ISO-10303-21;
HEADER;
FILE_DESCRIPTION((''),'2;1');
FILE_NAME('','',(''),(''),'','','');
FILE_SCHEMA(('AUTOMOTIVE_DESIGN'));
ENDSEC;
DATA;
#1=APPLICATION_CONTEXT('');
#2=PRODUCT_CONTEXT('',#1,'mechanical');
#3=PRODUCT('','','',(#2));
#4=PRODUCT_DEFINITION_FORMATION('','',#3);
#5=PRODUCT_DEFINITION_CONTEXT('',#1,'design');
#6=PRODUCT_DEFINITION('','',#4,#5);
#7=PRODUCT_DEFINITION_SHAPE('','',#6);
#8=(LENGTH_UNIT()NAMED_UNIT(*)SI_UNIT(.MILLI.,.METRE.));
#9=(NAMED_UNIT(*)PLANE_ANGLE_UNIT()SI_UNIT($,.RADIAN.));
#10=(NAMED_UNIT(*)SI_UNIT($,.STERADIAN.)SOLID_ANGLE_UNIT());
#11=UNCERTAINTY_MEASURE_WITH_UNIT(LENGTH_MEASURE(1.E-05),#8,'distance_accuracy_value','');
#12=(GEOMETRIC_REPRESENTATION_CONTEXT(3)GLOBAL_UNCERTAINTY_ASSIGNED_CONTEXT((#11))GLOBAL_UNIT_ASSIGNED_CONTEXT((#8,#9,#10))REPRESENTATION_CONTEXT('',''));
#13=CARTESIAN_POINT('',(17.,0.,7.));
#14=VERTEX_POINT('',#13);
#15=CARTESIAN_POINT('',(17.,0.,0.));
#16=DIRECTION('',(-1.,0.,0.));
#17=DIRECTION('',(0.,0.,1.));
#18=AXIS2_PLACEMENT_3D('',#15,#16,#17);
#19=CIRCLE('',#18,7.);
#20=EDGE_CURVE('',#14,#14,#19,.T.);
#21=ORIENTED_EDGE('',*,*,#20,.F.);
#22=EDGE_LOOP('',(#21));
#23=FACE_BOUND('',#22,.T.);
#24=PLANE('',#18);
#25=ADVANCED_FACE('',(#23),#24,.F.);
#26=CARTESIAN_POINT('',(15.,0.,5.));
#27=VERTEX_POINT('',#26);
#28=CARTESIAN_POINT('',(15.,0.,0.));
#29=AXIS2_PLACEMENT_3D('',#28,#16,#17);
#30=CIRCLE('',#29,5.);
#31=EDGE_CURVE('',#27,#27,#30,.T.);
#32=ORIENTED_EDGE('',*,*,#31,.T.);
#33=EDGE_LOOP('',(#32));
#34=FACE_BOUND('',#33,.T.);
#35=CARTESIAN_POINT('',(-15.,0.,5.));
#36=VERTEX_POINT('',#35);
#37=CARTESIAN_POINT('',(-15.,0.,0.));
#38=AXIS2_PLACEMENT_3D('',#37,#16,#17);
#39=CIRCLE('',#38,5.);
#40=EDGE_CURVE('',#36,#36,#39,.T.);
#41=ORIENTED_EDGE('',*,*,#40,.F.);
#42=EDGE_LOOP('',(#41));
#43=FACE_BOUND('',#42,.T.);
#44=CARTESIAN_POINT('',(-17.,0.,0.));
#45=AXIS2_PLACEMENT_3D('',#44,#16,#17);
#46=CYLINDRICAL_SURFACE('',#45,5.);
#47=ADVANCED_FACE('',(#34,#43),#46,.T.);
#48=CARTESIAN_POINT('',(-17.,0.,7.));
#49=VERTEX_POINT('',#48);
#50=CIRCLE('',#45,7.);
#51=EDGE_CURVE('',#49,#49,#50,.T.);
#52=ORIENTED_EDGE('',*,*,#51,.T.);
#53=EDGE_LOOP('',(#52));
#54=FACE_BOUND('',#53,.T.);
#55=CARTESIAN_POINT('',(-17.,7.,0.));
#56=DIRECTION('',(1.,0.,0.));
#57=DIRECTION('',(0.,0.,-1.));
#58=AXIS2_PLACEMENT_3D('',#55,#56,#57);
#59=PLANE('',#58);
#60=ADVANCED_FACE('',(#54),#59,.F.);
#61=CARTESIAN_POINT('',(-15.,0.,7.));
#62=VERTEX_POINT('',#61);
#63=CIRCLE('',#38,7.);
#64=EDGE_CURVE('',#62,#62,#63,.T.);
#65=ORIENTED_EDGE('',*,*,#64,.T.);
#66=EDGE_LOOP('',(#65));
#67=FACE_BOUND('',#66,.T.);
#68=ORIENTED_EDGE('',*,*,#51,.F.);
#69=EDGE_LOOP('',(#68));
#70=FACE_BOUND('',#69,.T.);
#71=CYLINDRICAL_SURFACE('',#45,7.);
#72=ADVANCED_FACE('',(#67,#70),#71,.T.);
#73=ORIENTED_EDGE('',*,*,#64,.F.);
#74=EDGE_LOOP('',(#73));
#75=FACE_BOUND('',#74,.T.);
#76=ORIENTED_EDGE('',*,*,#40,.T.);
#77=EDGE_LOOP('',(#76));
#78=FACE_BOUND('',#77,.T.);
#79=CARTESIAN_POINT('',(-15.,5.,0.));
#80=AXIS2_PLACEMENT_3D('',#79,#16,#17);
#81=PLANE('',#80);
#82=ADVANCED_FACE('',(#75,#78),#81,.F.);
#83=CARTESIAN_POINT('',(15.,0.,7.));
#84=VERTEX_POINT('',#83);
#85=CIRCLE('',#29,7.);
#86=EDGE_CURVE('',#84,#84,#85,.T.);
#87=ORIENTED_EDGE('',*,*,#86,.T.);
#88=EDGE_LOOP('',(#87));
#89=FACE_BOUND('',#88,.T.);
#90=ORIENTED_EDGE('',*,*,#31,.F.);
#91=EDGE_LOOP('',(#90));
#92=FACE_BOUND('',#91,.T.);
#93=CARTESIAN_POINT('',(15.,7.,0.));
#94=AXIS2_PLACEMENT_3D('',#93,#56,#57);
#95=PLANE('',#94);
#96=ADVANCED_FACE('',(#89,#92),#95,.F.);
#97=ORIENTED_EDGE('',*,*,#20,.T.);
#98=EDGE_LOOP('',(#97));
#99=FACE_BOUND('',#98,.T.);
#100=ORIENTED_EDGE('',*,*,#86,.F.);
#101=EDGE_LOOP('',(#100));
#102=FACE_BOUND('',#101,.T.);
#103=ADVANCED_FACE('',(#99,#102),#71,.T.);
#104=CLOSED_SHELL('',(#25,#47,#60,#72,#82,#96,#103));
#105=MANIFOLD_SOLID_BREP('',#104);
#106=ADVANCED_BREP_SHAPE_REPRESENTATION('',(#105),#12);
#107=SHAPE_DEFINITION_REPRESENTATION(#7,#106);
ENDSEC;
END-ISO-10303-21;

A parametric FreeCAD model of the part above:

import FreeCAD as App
import Part
import Sketcher
from FreeCAD import Vector
Q = App.Units.Quantity

doc = App.newDocument("Part")
body = doc.addObject("PartDesign::Body", "Body")

sketch1 = body.newObject("Sketcher::SketchObject", "Sketch")
sketch1.AttachmentSupport = (doc.getObject("XY_Plane"), [""])
sketch1.MapMode = "FlatFace"
sketch1.addGeometry(Part.LineSegment(Vector(15, 5, 0), Vector(-15, 5, 0)), False)
sketch1.addGeometry(Part.LineSegment(Vector(-15, 5, 0), Vector(-15, 7, 0)), False)
sketch1.addGeometry(Part.LineSegment(Vector(-15, 7, 0), Vector(-17, 7, 0)), False)
sketch1.addGeometry(Part.LineSegment(Vector(-17, 7, 0), Vector(-17, 0, 0)), False)
sketch1.addGeometry(Part.LineSegment(Vector(-17, 0, 0), Vector(17, 0, 0)), False)
sketch1.addGeometry(Part.LineSegment(Vector(17, 0, 0), Vector(17, 7, 0)), False)
sketch1.addGeometry(Part.LineSegment(Vector(17, 7, 0), Vector(15, 7, 0)), False)
sketch1.addGeometry(Part.LineSegment(Vector(15, 7, 0), Vector(15, 5, 0)), False)
sketch1.addConstraint(Sketcher.Constraint("Coincident", 0, 2, 1, 1))
sketch1.addConstraint(Sketcher.Constraint("Coincident", 1, 2, 2, 1))
sketch1.addConstraint(Sketcher.Constraint("Coincident", 2, 2, 3, 1))
sketch1.addConstraint(Sketcher.Constraint("Coincident", 3, 2, 4, 1))
sketch1.addConstraint(Sketcher.Constraint("Coincident", 4, 2, 5, 1))
sketch1.addConstraint(Sketcher.Constraint("Coincident", 5, 2, 6, 1))
sketch1.addConstraint(Sketcher.Constraint("Coincident", 6, 2, 7, 1))
sketch1.addConstraint(Sketcher.Constraint("Coincident", 7, 2, 0, 1))
sketch1.addConstraint(Sketcher.Constraint("Horizontal", 0))
sketch1.addConstraint(Sketcher.Constraint("Vertical", 1))
sketch1.addConstraint(Sketcher.Constraint("Horizontal", 2))
sketch1.addConstraint(Sketcher.Constraint("Vertical", 3))
sketch1.addConstraint(Sketcher.Constraint("Horizontal", 4))
sketch1.addConstraint(Sketcher.Constraint("Vertical", 5))
sketch1.addConstraint(Sketcher.Constraint("Horizontal", 6))
sketch1.addConstraint(Sketcher.Constraint("Vertical", 7))
sketch1.addConstraint(Sketcher.Constraint("Symmetric", 3, 2, 4, 2, -1, 1))
sketch1.addConstraint(Sketcher.Constraint("Symmetric", 1, 2, 6, 2, -2))
sketch1.addConstraint(Sketcher.Constraint("Equal", 6, 1))
sketch1.addConstraint(Sketcher.Constraint("DistanceX", 0, 2, 0, 1, Q("30 mm")))
sketch1.addConstraint(Sketcher.Constraint("DistanceX", 2, 2, 2, 1, Q("2 mm")))
sketch1.addConstraint(Sketcher.Constraint("DistanceY", 3, 2, 3, 1, Q("7 mm")))
revolution = body.newObject("PartDesign::Revolution", "Revolution")
revolution.Profile = sketch1
revolution.ReferenceAxis = (sketch1, ["H_Axis"])
revolution.Angle = 360

doc.recompute()
